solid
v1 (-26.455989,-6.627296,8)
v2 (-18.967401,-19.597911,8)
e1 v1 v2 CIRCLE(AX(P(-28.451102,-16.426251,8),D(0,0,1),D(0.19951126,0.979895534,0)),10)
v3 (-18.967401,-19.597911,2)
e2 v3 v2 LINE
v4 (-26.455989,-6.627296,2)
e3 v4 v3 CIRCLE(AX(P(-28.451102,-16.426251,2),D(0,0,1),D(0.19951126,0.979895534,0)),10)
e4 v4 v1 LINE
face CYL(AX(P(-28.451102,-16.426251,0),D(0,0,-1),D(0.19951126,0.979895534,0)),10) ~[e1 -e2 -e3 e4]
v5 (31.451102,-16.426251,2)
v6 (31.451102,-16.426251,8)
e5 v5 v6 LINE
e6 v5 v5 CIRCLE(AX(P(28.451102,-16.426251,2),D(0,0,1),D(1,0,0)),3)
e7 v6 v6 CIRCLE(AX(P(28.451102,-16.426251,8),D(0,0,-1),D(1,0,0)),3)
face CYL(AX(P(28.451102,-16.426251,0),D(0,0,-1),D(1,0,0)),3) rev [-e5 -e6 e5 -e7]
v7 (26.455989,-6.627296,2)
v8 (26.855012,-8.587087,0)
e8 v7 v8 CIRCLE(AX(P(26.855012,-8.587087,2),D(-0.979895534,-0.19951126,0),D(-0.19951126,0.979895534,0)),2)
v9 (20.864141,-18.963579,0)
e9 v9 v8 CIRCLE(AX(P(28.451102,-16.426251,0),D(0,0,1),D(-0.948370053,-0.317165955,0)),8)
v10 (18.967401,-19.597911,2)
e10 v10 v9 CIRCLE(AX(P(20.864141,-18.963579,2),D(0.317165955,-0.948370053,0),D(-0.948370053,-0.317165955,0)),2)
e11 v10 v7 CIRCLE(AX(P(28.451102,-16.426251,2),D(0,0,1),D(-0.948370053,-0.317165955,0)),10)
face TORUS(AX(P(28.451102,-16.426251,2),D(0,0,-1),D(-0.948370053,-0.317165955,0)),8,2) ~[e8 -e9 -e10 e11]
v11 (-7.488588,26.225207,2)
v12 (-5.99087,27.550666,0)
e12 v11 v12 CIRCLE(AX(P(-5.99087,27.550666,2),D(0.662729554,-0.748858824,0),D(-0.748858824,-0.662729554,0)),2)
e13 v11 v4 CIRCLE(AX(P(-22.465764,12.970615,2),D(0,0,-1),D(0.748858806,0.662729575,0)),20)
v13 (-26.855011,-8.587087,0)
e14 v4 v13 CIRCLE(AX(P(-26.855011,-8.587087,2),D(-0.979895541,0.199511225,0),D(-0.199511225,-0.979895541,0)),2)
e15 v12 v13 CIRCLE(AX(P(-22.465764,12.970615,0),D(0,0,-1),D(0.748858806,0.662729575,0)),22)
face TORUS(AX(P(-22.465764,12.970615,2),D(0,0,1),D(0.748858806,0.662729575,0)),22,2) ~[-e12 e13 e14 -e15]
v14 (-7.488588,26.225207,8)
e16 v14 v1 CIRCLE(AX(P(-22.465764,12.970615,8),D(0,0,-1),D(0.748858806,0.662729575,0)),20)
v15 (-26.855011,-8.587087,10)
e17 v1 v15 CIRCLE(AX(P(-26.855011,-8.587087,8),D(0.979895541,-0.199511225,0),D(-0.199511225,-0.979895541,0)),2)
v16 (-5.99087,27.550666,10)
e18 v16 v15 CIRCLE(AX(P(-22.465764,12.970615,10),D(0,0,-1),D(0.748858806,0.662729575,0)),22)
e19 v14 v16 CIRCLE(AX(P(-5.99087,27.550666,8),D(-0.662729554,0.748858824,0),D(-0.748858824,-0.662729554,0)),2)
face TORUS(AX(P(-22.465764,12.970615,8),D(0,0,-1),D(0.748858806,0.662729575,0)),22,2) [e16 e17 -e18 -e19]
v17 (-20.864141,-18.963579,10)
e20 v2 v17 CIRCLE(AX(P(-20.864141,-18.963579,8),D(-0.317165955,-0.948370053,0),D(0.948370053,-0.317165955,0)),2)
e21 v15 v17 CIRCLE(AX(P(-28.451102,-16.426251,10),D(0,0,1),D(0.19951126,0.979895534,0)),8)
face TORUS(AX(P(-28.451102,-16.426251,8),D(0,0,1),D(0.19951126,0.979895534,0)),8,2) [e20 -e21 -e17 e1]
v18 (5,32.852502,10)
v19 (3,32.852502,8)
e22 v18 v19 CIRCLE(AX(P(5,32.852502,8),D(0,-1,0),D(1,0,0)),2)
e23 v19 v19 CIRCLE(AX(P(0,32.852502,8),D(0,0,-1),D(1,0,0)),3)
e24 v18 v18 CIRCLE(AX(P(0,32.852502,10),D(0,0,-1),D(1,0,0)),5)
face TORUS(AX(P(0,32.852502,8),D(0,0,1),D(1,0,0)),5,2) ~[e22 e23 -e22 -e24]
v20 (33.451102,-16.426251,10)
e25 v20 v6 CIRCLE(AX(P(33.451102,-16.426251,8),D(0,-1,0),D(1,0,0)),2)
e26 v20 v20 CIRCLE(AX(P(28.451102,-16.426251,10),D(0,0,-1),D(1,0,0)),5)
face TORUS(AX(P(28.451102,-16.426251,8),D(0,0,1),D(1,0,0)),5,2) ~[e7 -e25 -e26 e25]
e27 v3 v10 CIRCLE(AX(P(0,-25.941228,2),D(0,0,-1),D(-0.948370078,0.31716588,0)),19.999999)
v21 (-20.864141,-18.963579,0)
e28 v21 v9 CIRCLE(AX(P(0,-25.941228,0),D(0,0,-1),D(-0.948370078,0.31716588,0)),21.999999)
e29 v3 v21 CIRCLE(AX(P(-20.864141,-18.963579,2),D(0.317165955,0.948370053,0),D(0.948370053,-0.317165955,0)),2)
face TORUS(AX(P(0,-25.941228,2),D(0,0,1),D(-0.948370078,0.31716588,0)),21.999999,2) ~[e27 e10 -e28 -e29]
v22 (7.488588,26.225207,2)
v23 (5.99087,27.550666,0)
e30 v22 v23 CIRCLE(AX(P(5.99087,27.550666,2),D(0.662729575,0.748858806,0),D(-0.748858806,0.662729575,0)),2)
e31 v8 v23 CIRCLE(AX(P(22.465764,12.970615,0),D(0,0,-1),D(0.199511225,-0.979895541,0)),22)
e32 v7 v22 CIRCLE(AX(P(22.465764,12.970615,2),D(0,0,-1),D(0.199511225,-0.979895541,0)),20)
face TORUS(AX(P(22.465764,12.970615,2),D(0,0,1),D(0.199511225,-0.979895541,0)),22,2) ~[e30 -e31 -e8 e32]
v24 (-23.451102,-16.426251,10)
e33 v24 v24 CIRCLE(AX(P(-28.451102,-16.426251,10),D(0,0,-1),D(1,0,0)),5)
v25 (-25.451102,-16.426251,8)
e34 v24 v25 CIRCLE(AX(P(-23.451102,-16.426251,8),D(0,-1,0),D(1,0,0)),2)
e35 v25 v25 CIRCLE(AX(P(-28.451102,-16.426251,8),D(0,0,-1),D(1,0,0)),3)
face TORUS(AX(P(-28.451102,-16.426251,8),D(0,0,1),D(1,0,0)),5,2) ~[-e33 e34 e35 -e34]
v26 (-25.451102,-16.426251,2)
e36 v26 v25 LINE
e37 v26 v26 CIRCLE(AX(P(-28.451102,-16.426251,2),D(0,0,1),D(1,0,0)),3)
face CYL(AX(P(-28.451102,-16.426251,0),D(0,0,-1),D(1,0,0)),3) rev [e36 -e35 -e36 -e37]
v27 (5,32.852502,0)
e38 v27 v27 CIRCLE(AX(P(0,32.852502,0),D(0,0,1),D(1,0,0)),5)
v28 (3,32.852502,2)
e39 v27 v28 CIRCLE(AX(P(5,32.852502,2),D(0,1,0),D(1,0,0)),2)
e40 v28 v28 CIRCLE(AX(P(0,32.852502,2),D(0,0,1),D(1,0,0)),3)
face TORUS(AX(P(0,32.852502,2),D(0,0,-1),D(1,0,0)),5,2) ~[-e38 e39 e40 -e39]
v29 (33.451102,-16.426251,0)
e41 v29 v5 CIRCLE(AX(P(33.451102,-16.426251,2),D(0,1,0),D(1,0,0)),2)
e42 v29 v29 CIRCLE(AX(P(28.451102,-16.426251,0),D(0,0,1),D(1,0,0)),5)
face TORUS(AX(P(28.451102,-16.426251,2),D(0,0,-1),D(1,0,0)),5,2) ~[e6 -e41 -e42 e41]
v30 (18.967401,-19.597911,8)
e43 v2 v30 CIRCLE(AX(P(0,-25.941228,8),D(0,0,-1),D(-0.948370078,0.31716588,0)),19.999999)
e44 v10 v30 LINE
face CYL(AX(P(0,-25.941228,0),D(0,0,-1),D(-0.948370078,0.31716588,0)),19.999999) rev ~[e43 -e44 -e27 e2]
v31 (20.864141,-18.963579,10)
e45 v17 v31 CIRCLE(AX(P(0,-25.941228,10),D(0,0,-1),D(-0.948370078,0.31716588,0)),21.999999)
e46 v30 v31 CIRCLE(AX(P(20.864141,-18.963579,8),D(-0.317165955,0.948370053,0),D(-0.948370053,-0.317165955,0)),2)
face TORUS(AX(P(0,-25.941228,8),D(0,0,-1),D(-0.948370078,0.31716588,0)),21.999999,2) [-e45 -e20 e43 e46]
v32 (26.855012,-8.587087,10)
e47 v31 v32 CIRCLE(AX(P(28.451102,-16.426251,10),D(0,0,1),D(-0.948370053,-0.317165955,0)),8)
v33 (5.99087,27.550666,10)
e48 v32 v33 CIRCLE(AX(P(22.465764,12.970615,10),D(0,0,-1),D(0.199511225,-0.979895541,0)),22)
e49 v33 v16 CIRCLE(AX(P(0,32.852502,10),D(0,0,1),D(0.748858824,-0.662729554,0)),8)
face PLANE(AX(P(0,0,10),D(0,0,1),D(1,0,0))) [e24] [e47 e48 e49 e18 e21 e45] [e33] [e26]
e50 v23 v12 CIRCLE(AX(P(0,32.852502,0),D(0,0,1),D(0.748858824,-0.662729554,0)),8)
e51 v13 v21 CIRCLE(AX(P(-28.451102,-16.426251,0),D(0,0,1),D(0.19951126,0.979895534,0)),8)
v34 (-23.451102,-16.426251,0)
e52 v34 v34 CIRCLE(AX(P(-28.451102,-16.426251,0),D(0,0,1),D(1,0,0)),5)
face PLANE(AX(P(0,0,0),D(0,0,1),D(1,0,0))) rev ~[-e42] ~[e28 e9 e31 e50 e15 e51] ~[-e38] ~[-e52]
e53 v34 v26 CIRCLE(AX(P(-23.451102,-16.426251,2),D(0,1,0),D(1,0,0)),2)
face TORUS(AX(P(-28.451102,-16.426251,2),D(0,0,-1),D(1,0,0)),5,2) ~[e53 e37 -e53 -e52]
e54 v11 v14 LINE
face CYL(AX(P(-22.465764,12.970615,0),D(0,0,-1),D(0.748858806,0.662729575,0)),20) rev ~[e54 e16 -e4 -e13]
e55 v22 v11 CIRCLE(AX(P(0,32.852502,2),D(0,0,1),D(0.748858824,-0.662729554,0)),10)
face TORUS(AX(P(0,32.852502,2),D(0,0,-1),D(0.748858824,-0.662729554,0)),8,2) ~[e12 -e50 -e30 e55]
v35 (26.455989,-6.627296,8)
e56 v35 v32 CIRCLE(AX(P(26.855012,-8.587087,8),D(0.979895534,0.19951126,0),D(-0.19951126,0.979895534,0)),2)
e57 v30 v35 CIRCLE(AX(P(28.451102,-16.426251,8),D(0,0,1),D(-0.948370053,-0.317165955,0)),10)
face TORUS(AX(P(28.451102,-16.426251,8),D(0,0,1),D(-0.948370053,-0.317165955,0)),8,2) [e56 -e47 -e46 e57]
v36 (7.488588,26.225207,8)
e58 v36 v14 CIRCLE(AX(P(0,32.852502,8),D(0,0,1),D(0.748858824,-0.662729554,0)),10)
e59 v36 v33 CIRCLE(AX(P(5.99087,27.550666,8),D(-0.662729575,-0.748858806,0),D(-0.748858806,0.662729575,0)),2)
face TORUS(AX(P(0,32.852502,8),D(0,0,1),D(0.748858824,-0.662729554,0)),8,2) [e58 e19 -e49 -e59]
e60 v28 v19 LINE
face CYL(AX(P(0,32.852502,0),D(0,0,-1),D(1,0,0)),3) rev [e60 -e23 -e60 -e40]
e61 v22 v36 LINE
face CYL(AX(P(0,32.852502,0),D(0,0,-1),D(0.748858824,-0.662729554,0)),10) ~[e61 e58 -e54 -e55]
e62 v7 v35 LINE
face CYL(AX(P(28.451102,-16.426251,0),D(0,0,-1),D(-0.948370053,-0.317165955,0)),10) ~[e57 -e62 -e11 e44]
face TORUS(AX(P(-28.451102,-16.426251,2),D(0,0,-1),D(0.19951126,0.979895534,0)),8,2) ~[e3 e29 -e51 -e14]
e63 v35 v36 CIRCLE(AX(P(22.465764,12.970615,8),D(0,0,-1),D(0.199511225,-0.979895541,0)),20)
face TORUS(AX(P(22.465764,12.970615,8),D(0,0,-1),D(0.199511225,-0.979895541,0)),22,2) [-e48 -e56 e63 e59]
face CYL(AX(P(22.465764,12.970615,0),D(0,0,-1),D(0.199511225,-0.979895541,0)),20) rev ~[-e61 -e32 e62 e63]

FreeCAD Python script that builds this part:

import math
import FreeCAD as App
import Part
import Sketcher
Q = App.Units.Quantity


def edges_at(feature, points):
    """Names of the edges that pass closest to the given points."""
    edges = feature.Shape.Edges
    near = lambda p: min(range(len(edges)), key=lambda i: edges[i].distToShape(Part.Vertex(*p))[0])
    return sorted({f"Edge{near(p) + 1}" for p in points})

doc = App.newDocument("Part")
body = doc.addObject("PartDesign::Body", "Body")

sketch1 = body.newObject("Sketcher::SketchObject", "Sketch")
sketch1.AttachmentSupport = (doc.getObject("XY_Plane"), [""])
sketch1.MapMode = "FlatFace"
sketch1.addGeometry(Part.ArcOfCircle(Part.Circle(App.Vector(22.465764, 12.970615, 0), App.Vector(0, 0, 1), 20), math.radians(138.491621), math.radians(281.508378)), False)
sketch1.addGeometry(Part.ArcOfCircle(Part.Circle(App.Vector(0, 32.852502, 0), App.Vector(0, 0, 1), 10), math.radians(-41.508378), math.radians(221.508378)), False)
sketch1.addGeometry(Part.ArcOfCircle(Part.Circle(App.Vector(-22.465764, 12.970615, 0), App.Vector(0, 0, 1), 20), math.radians(-101.508378), math.radians(41.508379)), False)
sketch1.addGeometry(Part.ArcOfCircle(Part.Circle(App.Vector(-28.451102, -16.426251, 0), App.Vector(0, 0, 1), 10), math.radians(78.49162), math.radians(341.50838)), False)
sketch1.addGeometry(Part.ArcOfCircle(Part.Circle(App.Vector(0, -25.941228, 0), App.Vector(0, 0, 1), 19.999999), math.radians(18.491616), math.radians(161.508384)), False)
sketch1.addGeometry(Part.ArcOfCircle(Part.Circle(App.Vector(28.451102, -16.426251, 0), App.Vector(0, 0, 1), 10), math.radians(-161.50838), math.radians(101.50838)), False)
sketch1.addConstraint(Sketcher.Constraint("Tangent", 0, 1, 1, 1))
sketch1.addConstraint(Sketcher.Constraint("Tangent", 1, 2, 2, 2))
sketch1.addConstraint(Sketcher.Constraint("Tangent", 2, 1, 3, 1))
sketch1.addConstraint(Sketcher.Constraint("Tangent", 3, 2, 4, 2))
sketch1.addConstraint(Sketcher.Constraint("Tangent", 4, 1, 5, 1))
sketch1.addConstraint(Sketcher.Constraint("Tangent", 5, 2, 0, 2))
sketch1.addConstraint(Sketcher.Constraint("Equal", 0, 2))
sketch1.addConstraint(Sketcher.Constraint("Equal", 1, 3))
sketch1.addConstraint(Sketcher.Constraint("Equal", 2, 4))
sketch1.addConstraint(Sketcher.Constraint("Equal", 3, 5))
sketch1.addConstraint(Sketcher.Constraint("Symmetric", 0, 3, 2, 3, -2))
sketch1.addConstraint(Sketcher.Constraint("PointOnObject", 4, 3, -2))
sketch1.addConstraint(Sketcher.Constraint("Radius", 0, Q("20 mm")))
sketch1.addConstraint(Sketcher.Constraint("Radius", 1, Q("10 mm")))
sketch1.addConstraint(Sketcher.Constraint("DistanceX", 3, 3, -1, 1, Q("28.451102 mm")))
sketch1.addConstraint(Sketcher.Constraint("DistanceY", 3, 3, -1, 1, Q("16.426251 mm")))
sketch1.addConstraint(Sketcher.Constraint("DistanceX", -1, 1, 0, 1, Q("7.488588 mm")))
pad1 = body.newObject("PartDesign::Pad", "Pad")
pad1.Profile = sketch1
pad1.Length = 10

sketch2 = body.newObject("Sketcher::SketchObject", "Sketch001")
sketch2.AttachmentSupport = (doc.getObject("XY_Plane"), [""])
sketch2.MapMode = "FlatFace"
sketch2.addGeometry(Part.Circle(App.Vector(0, 32.852502, 0), App.Vector(0, 0, 1), 3), False)
sketch2.addGeometry(Part.Circle(App.Vector(28.451102, -16.426251, 0), App.Vector(0, 0, 1), 3), False)
sketch2.addGeometry(Part.Circle(App.Vector(-28.451102, -16.426251, 0), App.Vector(0, 0, 1), 3), False)
sketch2.addConstraint(Sketcher.Constraint("Equal", 0, 1))
sketch2.addConstraint(Sketcher.Constraint("Equal", 1, 2))
sketch2.addConstraint(Sketcher.Constraint("Symmetric", 1, 3, 2, 3, -2))
sketch2.addConstraint(Sketcher.Constraint("PointOnObject", 0, 3, -2))
sketch2.addConstraint(Sketcher.Constraint("Diameter", 0, Q("6 mm")))
sketch2.addConstraint(Sketcher.Constraint("DistanceX", -1, 1, 1, 3, Q("28.451102 mm")))
sketch2.addConstraint(Sketcher.Constraint("DistanceY", 1, 3, -1, 1, Q("16.426251 mm")))
sketch2.addConstraint(Sketcher.Constraint("DistanceY", -1, 1, 0, 3, Q("32.852502 mm")))
pocket1 = body.newObject("PartDesign::Pocket", "Pocket")
pocket1.Profile = sketch2
pocket1.Length = 25
pocket1.Reversed = True
doc.recompute()

fillet = body.newObject("PartDesign::Fillet", "Fillet")
fillet.Base = (pocket1, edges_at(pocket1, [
    (37.111, -21.426, 10),
    (0, -5.941, 10),
    (5.145, 2.971, 10),
    (-37.111, -21.426, 10),
    (0, 42.853, 10),
    (-5.145, 2.971, 10),
    (-31.451, -16.426, 10),
    (25.451, -16.426, 10),
    (-3, 32.853, 10),
]))
fillet.Radius = 2
doc.recompute()

fillet2 = body.newObject("PartDesign::Fillet", "Fillet001")
fillet2.Base = (fillet, edges_at(fillet, [
    (37.111, -21.426, 0),
    (0, -5.941, 0),
    (5.145, 2.971, 0),
    (-37.111, -21.426, 0),
    (0, 42.853, 0),
    (-5.145, 2.971, 0),
    (-31.451, -16.426, 0),
    (25.451, -16.426, 0),
    (-3, 32.853, 0),
]))
fillet2.Radius = 2

doc.recompute()
